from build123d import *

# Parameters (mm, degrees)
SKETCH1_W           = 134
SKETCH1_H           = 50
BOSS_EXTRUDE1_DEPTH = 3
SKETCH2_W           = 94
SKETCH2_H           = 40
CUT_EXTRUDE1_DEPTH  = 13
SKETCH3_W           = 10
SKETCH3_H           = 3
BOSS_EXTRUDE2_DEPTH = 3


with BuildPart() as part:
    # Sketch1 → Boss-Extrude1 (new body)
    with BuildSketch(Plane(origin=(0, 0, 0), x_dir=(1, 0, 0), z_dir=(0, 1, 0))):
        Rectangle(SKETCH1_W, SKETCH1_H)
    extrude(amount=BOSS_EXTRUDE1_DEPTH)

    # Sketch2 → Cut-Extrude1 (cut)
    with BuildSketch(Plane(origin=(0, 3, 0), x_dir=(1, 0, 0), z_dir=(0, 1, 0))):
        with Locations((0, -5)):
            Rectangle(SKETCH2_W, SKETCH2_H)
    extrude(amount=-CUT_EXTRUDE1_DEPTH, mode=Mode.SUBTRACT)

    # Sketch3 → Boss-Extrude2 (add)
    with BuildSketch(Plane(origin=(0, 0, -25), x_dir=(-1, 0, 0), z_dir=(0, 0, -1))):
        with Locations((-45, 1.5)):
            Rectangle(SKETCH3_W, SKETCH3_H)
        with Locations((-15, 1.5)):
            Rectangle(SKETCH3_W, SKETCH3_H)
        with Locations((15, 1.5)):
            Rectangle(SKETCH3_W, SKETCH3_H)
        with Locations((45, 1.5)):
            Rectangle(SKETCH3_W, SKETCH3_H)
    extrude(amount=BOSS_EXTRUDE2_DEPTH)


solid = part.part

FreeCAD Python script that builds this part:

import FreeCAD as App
import Part
import Sketcher

V = App.Vector
Q = App.Units.Quantity

doc = App.newDocument("Part")
params = doc.addObject("Spreadsheet::Sheet", "Params")
for row, (alias, value) in enumerate([
    ("sketch1_width", "134 mm"),
    ("sketch1_height", "50 mm"),
    ("pad1_length", "3 mm"),
    ("sketch2_width", "94 mm"),
    ("sketch2_height", "40 mm"),
    ("pocket1_length", "13 mm"),
    ("sketch3_width", "10 mm"),
    ("sketch3_height", "3 mm"),
    ("pad2_length", "3 mm"),
], start=1):
    params.set(f"A{row}", alias)
    params.set(f"B{row}", "=" + value)
    params.setAlias(f"B{row}", alias)

body = doc.addObject("PartDesign::Body", "Body")

# Sketch on XZ plane
sketch1 = doc.addObject("Sketcher::SketchObject", "Sketch")
body.addObject(sketch1)
sketch1.AttachmentSupport = (doc.XZ_Plane, [""])
sketch1.MapMode = "FlatFace"
sketch1.addGeometry(Part.LineSegment(V(-67, -25, 0), V(-67, 25, 0)), False)
sketch1.addGeometry(Part.LineSegment(V(-67, 25, 0), V(67, 25, 0)), False)
sketch1.addGeometry(Part.LineSegment(V(67, 25, 0), V(67, -25, 0)), False)
sketch1.addGeometry(Part.LineSegment(V(67, -25, 0), V(-67, -25, 0)), False)
sketch1.addConstraint(Sketcher.Constraint("Coincident", 0, 2, 1, 1))
sketch1.addConstraint(Sketcher.Constraint("Coincident", 1, 2, 2, 1))
sketch1.addConstraint(Sketcher.Constraint("Coincident", 2, 2, 3, 1))
sketch1.addConstraint(Sketcher.Constraint("Coincident", 3, 2, 0, 1))
sketch1.addConstraint(Sketcher.Constraint("Vertical", 0))
sketch1.addConstraint(Sketcher.Constraint("Horizontal", 1))
sketch1.addConstraint(Sketcher.Constraint("Vertical", 2))
sketch1.addConstraint(Sketcher.Constraint("Horizontal", 3))
sketch1.addConstraint(Sketcher.Constraint("Symmetric", 0, 2, 2, 2, -1, 1))
sketch1.addConstraint(Sketcher.Constraint("DistanceX", 1, 1, 1, 2, Q("134 mm")))
sketch1.addConstraint(Sketcher.Constraint("DistanceY", 0, 1, 0, 2, Q("50 mm")))
sketch1.setExpression("Constraints[9]", "Params.sketch1_width")
sketch1.setExpression("Constraints[10]", "Params.sketch1_height")
pad1 = doc.addObject("PartDesign::Pad", "Pad")
body.addObject(pad1)
pad1.Profile = sketch1
pad1.setExpression("Length", "Params.pad1_length")
pad1.Reversed = True

# Sketch on XZ plane
sketch2 = doc.addObject("Sketcher::SketchObject", "Sketch001")
body.addObject(sketch2)
sketch2.AttachmentSupport = (doc.XZ_Plane, [""])
sketch2.MapMode = "FlatFace"
sketch2.AttachmentOffset = App.Placement(V(0, 0, -3), App.Rotation())
sketch2.addGeometry(Part.LineSegment(V(-47, -15, 0), V(-47, 25, 0)), False)
sketch2.addGeometry(Part.LineSegment(V(-47, 25, 0), V(47, 25, 0)), False)
sketch2.addGeometry(Part.LineSegment(V(47, 25, 0), V(47, -15, 0)), False)
sketch2.addGeometry(Part.LineSegment(V(47, -15, 0), V(-47, -15, 0)), False)
sketch2.addConstraint(Sketcher.Constraint("Coincident", 0, 2, 1, 1))
sketch2.addConstraint(Sketcher.Constraint("Coincident", 1, 2, 2, 1))
sketch2.addConstraint(Sketcher.Constraint("Coincident", 2, 2, 3, 1))
sketch2.addConstraint(Sketcher.Constraint("Coincident", 3, 2, 0, 1))
sketch2.addConstraint(Sketcher.Constraint("Vertical", 0))
sketch2.addConstraint(Sketcher.Constraint("Horizontal", 1))
sketch2.addConstraint(Sketcher.Constraint("Vertical", 2))
sketch2.addConstraint(Sketcher.Constraint("Horizontal", 3))
sketch2.addConstraint(Sketcher.Constraint("DistanceX", 1, 1, 1, 2, Q("94 mm")))
sketch2.addConstraint(Sketcher.Constraint("DistanceY", 0, 1, 0, 2, Q("40 mm")))
sketch2.addConstraint(Sketcher.Constraint("DistanceX", 0, 2, -1, 1, Q("47 mm")))
sketch2.addConstraint(Sketcher.Constraint("DistanceY", -1, 1, 0, 2, Q("25 mm")))
sketch2.setExpression("Constraints[8]", "Params.sketch2_width")
sketch2.setExpression("Constraints[9]", "Params.sketch2_height")
pocket1 = doc.addObject("PartDesign::Pocket", "Pocket")
body.addObject(pocket1)
pocket1.Profile = sketch2
pocket1.setExpression("Length", "Params.pocket1_length")
pocket1.Reversed = True

# Sketch on XY plane
sketch3 = doc.addObject("Sketcher::SketchObject", "Sketch002")
body.addObject(sketch3)
sketch3.AttachmentSupport = (doc.XY_Plane, [""])
sketch3.MapMode = "FlatFace"
sketch3.AttachmentOffset = App.Placement(V(0, 0, -25), App.Rotation())
sketch3.addGeometry(Part.LineSegment(V(50, 3, 0), V(50, 0, 0)), False)
sketch3.addGeometry(Part.LineSegment(V(50, 0, 0), V(40, 0, 0)), False)
sketch3.addGeometry(Part.LineSegment(V(40, 0, 0), V(40, 3, 0)), False)
sketch3.addGeometry(Part.LineSegment(V(40, 3, 0), V(50, 3, 0)), False)
sketch3.addGeometry(Part.LineSegment(V(20, 3, 0), V(20, 0, 0)), False)
sketch3.addGeometry(Part.LineSegment(V(20, 0, 0), V(10, 0, 0)), False)
sketch3.addGeometry(Part.LineSegment(V(10, 0, 0), V(10, 3, 0)), False)
sketch3.addGeometry(Part.LineSegment(V(10, 3, 0), V(20, 3, 0)), False)
sketch3.addGeometry(Part.LineSegment(V(-10, 3, 0), V(-10, 0, 0)), False)
sketch3.addGeometry(Part.LineSegment(V(-10, 0, 0), V(-20, 0, 0)), False)
sketch3.addGeometry(Part.LineSegment(V(-20, 0, 0), V(-20, 3, 0)), False)
sketch3.addGeometry(Part.LineSegment(V(-20, 3, 0), V(-10, 3, 0)), False)
sketch3.addGeometry(Part.LineSegment(V(-40, 3, 0), V(-40, 0, 0)), False)
sketch3.addGeometry(Part.LineSegment(V(-40, 0, 0), V(-50, 0, 0)), False)
sketch3.addGeometry(Part.LineSegment(V(-50, 0, 0), V(-50, 3, 0)), False)
sketch3.addGeometry(Part.LineSegment(V(-50, 3, 0), V(-40, 3, 0)), False)
sketch3.addConstraint(Sketcher.Constraint("Coincident", 0, 2, 1, 1))
sketch3.addConstraint(Sketcher.Constraint("Coincident", 1, 2, 2, 1))
sketch3.addConstraint(Sketcher.Constraint("Coincident", 2, 2, 3, 1))
sketch3.addConstraint(Sketcher.Constraint("Coincident", 3, 2, 0, 1))
sketch3.addConstraint(Sketcher.Constraint("Coincident", 4, 2, 5, 1))
sketch3.addConstraint(Sketcher.Constraint("Coincident", 5, 2, 6, 1))
sketch3.addConstraint(Sketcher.Constraint("Coincident", 6, 2, 7, 1))
sketch3.addConstraint(Sketcher.Constraint("Coincident", 7, 2, 4, 1))
sketch3.addConstraint(Sketcher.Constraint("Coincident", 8, 2, 9, 1))
sketch3.addConstraint(Sketcher.Constraint("Coincident", 9, 2, 10, 1))
sketch3.addConstraint(Sketcher.Constraint("Coincident", 10, 2, 11, 1))
sketch3.addConstraint(Sketcher.Constraint("Coincident", 11, 2, 8, 1))
sketch3.addConstraint(Sketcher.Constraint("Coincident", 12, 2, 13, 1))
sketch3.addConstraint(Sketcher.Constraint("Coincident", 13, 2, 14, 1))
sketch3.addConstraint(Sketcher.Constraint("Coincident", 14, 2, 15, 1))
sketch3.addConstraint(Sketcher.Constraint("Coincident", 15, 2, 12, 1))
sketch3.addConstraint(Sketcher.Constraint("Vertical", 0))
sketch3.addConstraint(Sketcher.Constraint("Horizontal", 1))
sketch3.addConstraint(Sketcher.Constraint("Vertical", 2))
sketch3.addConstraint(Sketcher.Constraint("Horizontal", 3))
sketch3.addConstraint(Sketcher.Constraint("Vertical", 4))
sketch3.addConstraint(Sketcher.Constraint("Horizontal", 5))
sketch3.addConstraint(Sketcher.Constraint("Vertical", 6))
sketch3.addConstraint(Sketcher.Constraint("Horizontal", 7))
sketch3.addConstraint(Sketcher.Constraint("Vertical", 8))
sketch3.addConstraint(Sketcher.Constraint("Horizontal", 9))
sketch3.addConstraint(Sketcher.Constraint("Vertical", 10))
sketch3.addConstraint(Sketcher.Constraint("Horizontal", 11))
sketch3.addConstraint(Sketcher.Constraint("Vertical", 12))
sketch3.addConstraint(Sketcher.Constraint("Horizontal", 13))
sketch3.addConstraint(Sketcher.Constraint("Vertical", 14))
sketch3.addConstraint(Sketcher.Constraint("Horizontal", 15))
sketch3.addConstraint(Sketcher.Constraint("Symmetric", 5, 2, 8, 2, -1, 1))
sketch3.addConstraint(Sketcher.Constraint("Symmetric", 1, 2, 12, 2, -1, 1))
sketch3.addConstraint(Sketcher.Constraint("Symmetric", 4, 2, 9, 2, -2))
sketch3.addConstraint(Sketcher.Constraint("Symmetric", 0, 2, 13, 2, -2))
sketch3.addConstraint(Sketcher.Constraint("Horizontal", 3, 2, 6, 2))
sketch3.addConstraint(Sketcher.Constraint("Horizontal", 7, 2, 10, 2))
sketch3.addConstraint(Sketcher.Constraint("Horizontal", 11, 2, 14, 2))
sketch3.addConstraint(Sketcher.Constraint("Equal", 3, 5))
sketch3.addConstraint(Sketcher.Constraint("DistanceX", 1, 2, 1, 1, Q("10 mm")))
sketch3.addConstraint(Sketcher.Constraint("DistanceY", 0, 2, 0, 1, Q("3 mm")))
sketch3.addConstraint(Sketcher.Constraint("DistanceX", -1, 1, 0, 2, Q("50 mm")))
sketch3.addConstraint(Sketcher.Constraint("DistanceX", -1, 1, 4, 2, Q("20 mm")))
sketch3.setExpression("Constraints[40]", "Params.sketch3_width")
sketch3.setExpression("Constraints[41]", "Params.sketch3_height")
pad2 = doc.addObject("PartDesign::Pad", "Pad001")
body.addObject(pad2)
pad2.Profile = sketch3
pad2.setExpression("Length", "Params.pad2_length")
pad2.Reversed = True

doc.recompute()
